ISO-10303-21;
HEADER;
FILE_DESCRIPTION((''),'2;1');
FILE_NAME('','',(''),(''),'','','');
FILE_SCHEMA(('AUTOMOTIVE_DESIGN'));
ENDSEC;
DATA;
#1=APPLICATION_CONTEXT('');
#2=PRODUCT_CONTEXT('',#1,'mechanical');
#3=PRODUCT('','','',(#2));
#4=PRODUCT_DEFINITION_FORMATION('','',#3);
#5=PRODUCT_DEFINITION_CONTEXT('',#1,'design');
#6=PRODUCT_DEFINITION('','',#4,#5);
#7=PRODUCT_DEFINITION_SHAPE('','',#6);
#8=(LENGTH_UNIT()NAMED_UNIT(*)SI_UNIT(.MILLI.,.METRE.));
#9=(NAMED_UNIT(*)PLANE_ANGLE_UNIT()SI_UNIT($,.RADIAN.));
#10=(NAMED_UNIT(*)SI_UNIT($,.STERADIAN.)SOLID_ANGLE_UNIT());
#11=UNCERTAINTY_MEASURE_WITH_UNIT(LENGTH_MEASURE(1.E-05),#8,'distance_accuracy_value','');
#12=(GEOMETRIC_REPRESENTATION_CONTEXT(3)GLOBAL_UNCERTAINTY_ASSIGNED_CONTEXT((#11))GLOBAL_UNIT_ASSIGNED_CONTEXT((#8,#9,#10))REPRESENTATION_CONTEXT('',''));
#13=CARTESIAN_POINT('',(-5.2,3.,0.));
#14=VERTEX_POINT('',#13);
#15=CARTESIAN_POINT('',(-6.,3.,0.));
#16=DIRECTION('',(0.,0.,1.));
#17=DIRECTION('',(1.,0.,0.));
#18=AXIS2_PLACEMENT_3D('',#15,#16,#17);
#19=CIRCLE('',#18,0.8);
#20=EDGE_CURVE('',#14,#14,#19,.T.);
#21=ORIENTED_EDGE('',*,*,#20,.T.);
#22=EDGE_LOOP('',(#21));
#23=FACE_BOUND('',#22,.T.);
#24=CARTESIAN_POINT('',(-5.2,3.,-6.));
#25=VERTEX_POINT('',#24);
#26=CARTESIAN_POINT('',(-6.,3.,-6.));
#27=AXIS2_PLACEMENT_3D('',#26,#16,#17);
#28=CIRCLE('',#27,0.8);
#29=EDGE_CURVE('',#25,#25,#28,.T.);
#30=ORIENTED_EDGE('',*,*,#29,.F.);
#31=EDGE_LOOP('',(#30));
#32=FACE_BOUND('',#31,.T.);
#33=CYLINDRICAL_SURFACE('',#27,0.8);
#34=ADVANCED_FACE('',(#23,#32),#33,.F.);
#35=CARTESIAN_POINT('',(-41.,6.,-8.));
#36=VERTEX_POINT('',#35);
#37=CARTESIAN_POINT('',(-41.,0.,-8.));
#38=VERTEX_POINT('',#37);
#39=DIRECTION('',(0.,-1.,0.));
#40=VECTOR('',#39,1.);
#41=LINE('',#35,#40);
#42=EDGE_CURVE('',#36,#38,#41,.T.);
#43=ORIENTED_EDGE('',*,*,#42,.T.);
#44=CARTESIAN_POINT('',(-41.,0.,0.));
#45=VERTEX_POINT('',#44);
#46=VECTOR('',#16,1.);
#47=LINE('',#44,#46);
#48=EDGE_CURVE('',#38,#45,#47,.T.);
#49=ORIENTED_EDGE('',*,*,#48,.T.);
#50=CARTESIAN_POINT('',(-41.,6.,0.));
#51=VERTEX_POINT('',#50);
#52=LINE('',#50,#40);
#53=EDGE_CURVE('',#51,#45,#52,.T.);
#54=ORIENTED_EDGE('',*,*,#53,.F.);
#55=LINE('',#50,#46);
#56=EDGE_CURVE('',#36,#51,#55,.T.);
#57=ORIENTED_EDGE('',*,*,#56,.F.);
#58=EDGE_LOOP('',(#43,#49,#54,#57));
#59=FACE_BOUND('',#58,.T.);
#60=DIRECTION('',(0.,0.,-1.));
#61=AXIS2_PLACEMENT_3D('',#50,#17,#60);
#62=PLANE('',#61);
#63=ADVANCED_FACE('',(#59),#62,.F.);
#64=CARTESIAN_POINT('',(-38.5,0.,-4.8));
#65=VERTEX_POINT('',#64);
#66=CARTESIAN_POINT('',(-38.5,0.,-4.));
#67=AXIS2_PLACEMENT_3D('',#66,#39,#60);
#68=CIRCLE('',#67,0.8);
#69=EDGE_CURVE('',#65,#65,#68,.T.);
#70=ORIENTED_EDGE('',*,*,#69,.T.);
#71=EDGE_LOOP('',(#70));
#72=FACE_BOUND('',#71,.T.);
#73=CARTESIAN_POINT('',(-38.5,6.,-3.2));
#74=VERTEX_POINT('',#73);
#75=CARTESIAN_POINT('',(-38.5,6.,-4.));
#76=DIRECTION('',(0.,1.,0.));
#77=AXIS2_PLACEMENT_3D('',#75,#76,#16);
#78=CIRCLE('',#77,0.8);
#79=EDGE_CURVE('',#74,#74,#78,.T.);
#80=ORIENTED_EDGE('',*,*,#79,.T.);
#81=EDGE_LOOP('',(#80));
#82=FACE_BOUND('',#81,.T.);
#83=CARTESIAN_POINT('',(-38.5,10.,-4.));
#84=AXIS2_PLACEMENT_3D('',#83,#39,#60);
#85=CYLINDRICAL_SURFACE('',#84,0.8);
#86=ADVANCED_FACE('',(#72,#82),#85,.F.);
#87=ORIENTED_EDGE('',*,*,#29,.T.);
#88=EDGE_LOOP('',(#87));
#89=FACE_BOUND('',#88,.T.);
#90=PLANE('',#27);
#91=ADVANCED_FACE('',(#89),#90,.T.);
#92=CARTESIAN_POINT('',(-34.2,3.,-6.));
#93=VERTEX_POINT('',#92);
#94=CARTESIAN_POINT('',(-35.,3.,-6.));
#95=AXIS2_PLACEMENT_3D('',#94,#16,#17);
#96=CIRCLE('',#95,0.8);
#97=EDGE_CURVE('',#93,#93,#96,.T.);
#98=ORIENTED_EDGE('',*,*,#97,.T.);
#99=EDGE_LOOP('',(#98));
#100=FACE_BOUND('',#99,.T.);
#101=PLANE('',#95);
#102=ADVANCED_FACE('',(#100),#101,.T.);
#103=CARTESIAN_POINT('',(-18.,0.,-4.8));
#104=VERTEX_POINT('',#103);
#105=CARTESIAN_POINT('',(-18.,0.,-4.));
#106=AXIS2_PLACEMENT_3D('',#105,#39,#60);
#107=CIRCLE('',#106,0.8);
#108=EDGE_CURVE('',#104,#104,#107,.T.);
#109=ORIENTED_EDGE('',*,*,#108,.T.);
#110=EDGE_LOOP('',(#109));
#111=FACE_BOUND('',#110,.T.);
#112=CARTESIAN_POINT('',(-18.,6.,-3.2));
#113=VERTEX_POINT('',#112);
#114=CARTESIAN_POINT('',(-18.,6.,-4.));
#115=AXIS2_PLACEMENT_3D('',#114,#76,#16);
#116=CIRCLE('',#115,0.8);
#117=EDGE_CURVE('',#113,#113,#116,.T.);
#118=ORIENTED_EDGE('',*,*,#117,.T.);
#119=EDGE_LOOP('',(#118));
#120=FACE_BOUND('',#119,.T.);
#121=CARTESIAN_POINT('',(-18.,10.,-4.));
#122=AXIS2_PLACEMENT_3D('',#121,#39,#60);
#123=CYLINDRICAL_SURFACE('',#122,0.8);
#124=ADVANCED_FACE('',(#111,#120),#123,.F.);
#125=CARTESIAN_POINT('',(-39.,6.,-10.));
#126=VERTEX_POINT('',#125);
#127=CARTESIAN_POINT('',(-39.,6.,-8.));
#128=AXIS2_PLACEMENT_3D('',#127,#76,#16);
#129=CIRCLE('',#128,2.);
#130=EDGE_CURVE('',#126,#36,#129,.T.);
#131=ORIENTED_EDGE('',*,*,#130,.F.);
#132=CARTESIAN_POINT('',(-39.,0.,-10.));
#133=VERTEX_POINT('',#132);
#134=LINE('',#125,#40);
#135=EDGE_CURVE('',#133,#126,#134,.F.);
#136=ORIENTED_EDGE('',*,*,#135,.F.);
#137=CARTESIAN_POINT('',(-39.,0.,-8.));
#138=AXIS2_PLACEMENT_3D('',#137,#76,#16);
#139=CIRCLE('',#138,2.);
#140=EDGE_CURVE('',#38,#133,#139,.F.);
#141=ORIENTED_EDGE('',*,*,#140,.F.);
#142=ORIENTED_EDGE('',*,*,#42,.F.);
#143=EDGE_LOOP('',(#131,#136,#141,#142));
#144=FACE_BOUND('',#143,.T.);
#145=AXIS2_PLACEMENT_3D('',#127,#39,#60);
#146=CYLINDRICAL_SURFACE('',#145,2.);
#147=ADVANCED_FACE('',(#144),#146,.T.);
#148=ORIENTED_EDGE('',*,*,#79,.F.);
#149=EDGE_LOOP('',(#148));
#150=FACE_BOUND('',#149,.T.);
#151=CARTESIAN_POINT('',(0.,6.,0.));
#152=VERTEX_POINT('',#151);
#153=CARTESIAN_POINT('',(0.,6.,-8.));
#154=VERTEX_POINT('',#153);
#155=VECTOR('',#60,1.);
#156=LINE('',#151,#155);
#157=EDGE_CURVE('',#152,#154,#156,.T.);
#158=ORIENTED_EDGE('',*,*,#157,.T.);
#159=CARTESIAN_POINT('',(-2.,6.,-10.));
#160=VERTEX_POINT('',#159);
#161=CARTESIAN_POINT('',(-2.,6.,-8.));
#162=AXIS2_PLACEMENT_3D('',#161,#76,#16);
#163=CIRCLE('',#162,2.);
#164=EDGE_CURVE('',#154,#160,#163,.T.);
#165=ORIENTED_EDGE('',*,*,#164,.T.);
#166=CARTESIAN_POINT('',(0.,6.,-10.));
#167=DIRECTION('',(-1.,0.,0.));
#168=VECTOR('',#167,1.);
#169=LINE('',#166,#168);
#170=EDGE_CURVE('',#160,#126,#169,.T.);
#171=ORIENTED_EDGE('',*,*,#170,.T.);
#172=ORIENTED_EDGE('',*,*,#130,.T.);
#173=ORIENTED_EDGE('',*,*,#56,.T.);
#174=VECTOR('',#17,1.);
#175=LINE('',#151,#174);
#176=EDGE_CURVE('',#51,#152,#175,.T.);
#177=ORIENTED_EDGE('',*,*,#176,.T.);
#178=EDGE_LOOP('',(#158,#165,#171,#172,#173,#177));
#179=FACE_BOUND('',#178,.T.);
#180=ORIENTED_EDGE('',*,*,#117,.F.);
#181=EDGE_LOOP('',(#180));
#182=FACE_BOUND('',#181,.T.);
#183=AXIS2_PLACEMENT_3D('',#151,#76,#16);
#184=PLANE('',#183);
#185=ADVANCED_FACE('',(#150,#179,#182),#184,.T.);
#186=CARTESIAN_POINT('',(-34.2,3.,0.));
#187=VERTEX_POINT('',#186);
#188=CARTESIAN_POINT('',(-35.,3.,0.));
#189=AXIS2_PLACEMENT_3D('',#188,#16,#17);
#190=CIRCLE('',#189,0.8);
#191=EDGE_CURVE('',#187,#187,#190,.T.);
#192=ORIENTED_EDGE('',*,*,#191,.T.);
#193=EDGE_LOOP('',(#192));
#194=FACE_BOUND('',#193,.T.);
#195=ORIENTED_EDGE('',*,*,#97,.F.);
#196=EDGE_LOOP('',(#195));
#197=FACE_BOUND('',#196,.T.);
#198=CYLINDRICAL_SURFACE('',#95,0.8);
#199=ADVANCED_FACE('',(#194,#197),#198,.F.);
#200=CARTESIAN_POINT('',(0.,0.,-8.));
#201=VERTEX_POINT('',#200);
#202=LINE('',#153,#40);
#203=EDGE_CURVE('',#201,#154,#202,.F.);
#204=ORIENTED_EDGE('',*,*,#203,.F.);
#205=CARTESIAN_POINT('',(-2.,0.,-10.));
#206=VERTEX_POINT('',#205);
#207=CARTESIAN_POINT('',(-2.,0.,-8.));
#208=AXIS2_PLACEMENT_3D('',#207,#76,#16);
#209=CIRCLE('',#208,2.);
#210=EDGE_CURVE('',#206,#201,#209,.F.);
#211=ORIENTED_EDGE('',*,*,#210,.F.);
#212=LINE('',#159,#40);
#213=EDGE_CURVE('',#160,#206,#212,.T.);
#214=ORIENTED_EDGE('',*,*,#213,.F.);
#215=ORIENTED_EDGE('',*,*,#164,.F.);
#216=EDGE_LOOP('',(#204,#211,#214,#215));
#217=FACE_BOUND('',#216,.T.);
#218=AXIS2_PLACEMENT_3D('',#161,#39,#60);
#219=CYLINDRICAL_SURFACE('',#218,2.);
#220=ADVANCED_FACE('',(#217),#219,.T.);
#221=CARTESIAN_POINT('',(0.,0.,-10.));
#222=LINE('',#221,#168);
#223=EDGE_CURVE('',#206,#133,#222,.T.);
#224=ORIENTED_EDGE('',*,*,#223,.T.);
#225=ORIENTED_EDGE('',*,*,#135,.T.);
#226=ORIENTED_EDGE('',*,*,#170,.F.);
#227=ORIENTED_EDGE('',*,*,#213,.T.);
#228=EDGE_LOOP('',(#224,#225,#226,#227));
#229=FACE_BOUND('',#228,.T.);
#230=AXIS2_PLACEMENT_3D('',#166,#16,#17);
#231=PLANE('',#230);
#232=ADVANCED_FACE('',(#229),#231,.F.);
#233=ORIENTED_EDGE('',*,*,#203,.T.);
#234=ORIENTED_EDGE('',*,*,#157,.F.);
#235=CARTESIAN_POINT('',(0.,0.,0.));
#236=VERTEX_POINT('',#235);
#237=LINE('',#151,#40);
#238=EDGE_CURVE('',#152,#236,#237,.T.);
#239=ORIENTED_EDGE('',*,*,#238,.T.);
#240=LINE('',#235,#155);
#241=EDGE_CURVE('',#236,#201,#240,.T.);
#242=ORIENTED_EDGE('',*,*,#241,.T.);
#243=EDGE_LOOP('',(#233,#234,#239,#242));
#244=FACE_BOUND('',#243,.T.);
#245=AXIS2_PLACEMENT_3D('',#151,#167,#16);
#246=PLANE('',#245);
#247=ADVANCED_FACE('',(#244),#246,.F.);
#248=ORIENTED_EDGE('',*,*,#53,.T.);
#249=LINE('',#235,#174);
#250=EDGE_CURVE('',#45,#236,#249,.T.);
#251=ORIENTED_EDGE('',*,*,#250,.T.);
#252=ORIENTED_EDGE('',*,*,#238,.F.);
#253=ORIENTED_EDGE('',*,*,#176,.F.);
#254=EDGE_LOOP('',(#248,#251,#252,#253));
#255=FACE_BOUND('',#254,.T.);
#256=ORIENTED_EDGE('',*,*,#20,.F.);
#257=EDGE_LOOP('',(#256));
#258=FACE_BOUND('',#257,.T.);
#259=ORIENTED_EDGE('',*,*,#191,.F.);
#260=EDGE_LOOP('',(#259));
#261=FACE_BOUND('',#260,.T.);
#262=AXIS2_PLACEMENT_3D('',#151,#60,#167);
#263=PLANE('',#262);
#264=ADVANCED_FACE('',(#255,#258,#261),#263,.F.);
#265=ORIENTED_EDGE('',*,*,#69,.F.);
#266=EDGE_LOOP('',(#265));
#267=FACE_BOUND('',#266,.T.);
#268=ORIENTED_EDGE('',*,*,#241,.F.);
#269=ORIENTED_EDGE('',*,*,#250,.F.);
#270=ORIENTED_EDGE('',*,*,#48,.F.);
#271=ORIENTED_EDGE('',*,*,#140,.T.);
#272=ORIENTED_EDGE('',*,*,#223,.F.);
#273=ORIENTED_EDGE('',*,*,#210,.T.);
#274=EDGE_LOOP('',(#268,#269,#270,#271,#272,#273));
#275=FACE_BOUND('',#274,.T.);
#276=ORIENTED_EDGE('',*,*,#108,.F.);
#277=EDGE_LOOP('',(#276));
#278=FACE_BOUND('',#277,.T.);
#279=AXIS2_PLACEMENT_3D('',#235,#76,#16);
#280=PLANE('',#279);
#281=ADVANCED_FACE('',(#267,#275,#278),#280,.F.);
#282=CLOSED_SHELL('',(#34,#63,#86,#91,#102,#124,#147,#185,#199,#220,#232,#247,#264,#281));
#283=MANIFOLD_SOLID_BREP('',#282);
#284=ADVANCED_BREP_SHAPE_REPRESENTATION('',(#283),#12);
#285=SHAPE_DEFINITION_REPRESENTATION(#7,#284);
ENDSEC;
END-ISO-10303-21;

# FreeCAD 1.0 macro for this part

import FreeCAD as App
import Part
import Sketcher
Q = App.Units.Quantity


def edges_at(feature, points):
    """Names of the edges that pass closest to the given points."""
    edges = feature.Shape.Edges
    near = lambda p: min(range(len(edges)), key=lambda i: edges[i].distToShape(Part.Vertex(*p))[0])
    return sorted({f"Edge{near(p) + 1}" for p in points})


def add_polygon(sketch, points):
    """Adds a closed chain of lines whose ends are joined by coincident constraints."""
    first, n = sketch.GeometryCount, len(points)
    for a, b in zip(points, points[1:] + points[:1]):
        sketch.addGeometry(Part.LineSegment(App.Vector(*a, 0), App.Vector(*b, 0)), False)
    for i in range(n):
        sketch.addConstraint(Sketcher.Constraint("Coincident", first + i, 2, first + (i + 1) % n, 1))

doc = App.newDocument("Part")
body = doc.addObject("PartDesign::Body", "Body")

# Sketch on XZ plane
sketch1 = body.newObject("Sketcher::SketchObject", "Sketch")
sketch1.AttachmentSupport = (doc.getObject("XZ_Plane"), [""])
sketch1.MapMode = "FlatFace"
add_polygon(sketch1, [(-41, -10), (-41, 0), (0, 0), (0, -10)])  # lines 0-3
sketch1.addConstraint([
    Sketcher.Constraint("Vertical", 0),
    Sketcher.Constraint("Horizontal", 1),
    Sketcher.Constraint("Vertical", 2),
    Sketcher.Constraint("Horizontal", 3),
    Sketcher.Constraint("Coincident", 1, 2, -1, 1),
    Sketcher.Constraint("DistanceX", 1, 1, 1, 2, Q("41 mm")),
    Sketcher.Constraint("DistanceY", 0, 1, 0, 2, Q("10 mm")),
])
pad1 = body.newObject("PartDesign::Pad", "Pad")
pad1.Profile = sketch1
pad1.Length = 6
pad1.Reversed = True

# Sketch on XY plane
sketch2 = body.newObject("Sketcher::SketchObject", "Sketch001")
sketch2.AttachmentSupport = (doc.getObject("XY_Plane"), [""])
sketch2.MapMode = "FlatFace"
sketch2.addGeometry([
    Part.Circle(App.Vector(-6, 3, 0), App.Vector(0, 0, 1), 0.8),
    Part.Circle(App.Vector(-35, 3, 0), App.Vector(0, 0, 1), 0.8),
], False)
sketch2.addConstraint([
    Sketcher.Constraint("Equal", 0, 1),
    Sketcher.Constraint("Horizontal", 0, 3, 1, 3),
    Sketcher.Constraint("Diameter", 0, Q("1.6 mm")),
    Sketcher.Constraint("DistanceX", 0, 3, -1, 1, Q("6 mm")),
    Sketcher.Constraint("DistanceY", -1, 1, 0, 3, Q("3 mm")),
    Sketcher.Constraint("DistanceX", 1, 3, -1, 1, Q("35 mm")),
])
pocket1 = body.newObject("PartDesign::Pocket", "Pocket")
pocket1.Profile = sketch2
pocket1.Length = 6
doc.recompute()

fillet = body.newObject("PartDesign::Fillet", "Fillet")
fillet.Base = (pocket1, edges_at(pocket1, [(-41, 3, -10), (0, 3, -10)]))
fillet.Radius = 2

# Sketch on XZ plane
sketch3 = body.newObject("Sketcher::SketchObject", "Sketch002")
sketch3.AttachmentSupport = (doc.getObject("XZ_Plane"), [""])
sketch3.MapMode = "FlatFace"
sketch3.addGeometry([
    Part.Circle(App.Vector(-38.5, -4, 0), App.Vector(0, 0, 1), 0.8),
    Part.Circle(App.Vector(-18, -4, 0), App.Vector(0, 0, 1), 0.8),
], False)
sketch3.addConstraint([
    Sketcher.Constraint("Equal", 0, 1),
    Sketcher.Constraint("Horizontal", 0, 3, 1, 3),
    Sketcher.Constraint("Diameter", 0, Q("1.6 mm")),
    Sketcher.Constraint("DistanceY", 0, 3, -1, 1, Q("4 mm")),
    Sketcher.Constraint("DistanceX", 1, 3, -1, 1, Q("18 mm")),
    Sketcher.Constraint("DistanceX", 0, 3, -1, 1, Q("38.5 mm")),
])
pocket2 = body.newObject("PartDesign::Pocket", "Pocket001")
pocket2.Profile = sketch3
pocket2.Length = 10

doc.recompute()
